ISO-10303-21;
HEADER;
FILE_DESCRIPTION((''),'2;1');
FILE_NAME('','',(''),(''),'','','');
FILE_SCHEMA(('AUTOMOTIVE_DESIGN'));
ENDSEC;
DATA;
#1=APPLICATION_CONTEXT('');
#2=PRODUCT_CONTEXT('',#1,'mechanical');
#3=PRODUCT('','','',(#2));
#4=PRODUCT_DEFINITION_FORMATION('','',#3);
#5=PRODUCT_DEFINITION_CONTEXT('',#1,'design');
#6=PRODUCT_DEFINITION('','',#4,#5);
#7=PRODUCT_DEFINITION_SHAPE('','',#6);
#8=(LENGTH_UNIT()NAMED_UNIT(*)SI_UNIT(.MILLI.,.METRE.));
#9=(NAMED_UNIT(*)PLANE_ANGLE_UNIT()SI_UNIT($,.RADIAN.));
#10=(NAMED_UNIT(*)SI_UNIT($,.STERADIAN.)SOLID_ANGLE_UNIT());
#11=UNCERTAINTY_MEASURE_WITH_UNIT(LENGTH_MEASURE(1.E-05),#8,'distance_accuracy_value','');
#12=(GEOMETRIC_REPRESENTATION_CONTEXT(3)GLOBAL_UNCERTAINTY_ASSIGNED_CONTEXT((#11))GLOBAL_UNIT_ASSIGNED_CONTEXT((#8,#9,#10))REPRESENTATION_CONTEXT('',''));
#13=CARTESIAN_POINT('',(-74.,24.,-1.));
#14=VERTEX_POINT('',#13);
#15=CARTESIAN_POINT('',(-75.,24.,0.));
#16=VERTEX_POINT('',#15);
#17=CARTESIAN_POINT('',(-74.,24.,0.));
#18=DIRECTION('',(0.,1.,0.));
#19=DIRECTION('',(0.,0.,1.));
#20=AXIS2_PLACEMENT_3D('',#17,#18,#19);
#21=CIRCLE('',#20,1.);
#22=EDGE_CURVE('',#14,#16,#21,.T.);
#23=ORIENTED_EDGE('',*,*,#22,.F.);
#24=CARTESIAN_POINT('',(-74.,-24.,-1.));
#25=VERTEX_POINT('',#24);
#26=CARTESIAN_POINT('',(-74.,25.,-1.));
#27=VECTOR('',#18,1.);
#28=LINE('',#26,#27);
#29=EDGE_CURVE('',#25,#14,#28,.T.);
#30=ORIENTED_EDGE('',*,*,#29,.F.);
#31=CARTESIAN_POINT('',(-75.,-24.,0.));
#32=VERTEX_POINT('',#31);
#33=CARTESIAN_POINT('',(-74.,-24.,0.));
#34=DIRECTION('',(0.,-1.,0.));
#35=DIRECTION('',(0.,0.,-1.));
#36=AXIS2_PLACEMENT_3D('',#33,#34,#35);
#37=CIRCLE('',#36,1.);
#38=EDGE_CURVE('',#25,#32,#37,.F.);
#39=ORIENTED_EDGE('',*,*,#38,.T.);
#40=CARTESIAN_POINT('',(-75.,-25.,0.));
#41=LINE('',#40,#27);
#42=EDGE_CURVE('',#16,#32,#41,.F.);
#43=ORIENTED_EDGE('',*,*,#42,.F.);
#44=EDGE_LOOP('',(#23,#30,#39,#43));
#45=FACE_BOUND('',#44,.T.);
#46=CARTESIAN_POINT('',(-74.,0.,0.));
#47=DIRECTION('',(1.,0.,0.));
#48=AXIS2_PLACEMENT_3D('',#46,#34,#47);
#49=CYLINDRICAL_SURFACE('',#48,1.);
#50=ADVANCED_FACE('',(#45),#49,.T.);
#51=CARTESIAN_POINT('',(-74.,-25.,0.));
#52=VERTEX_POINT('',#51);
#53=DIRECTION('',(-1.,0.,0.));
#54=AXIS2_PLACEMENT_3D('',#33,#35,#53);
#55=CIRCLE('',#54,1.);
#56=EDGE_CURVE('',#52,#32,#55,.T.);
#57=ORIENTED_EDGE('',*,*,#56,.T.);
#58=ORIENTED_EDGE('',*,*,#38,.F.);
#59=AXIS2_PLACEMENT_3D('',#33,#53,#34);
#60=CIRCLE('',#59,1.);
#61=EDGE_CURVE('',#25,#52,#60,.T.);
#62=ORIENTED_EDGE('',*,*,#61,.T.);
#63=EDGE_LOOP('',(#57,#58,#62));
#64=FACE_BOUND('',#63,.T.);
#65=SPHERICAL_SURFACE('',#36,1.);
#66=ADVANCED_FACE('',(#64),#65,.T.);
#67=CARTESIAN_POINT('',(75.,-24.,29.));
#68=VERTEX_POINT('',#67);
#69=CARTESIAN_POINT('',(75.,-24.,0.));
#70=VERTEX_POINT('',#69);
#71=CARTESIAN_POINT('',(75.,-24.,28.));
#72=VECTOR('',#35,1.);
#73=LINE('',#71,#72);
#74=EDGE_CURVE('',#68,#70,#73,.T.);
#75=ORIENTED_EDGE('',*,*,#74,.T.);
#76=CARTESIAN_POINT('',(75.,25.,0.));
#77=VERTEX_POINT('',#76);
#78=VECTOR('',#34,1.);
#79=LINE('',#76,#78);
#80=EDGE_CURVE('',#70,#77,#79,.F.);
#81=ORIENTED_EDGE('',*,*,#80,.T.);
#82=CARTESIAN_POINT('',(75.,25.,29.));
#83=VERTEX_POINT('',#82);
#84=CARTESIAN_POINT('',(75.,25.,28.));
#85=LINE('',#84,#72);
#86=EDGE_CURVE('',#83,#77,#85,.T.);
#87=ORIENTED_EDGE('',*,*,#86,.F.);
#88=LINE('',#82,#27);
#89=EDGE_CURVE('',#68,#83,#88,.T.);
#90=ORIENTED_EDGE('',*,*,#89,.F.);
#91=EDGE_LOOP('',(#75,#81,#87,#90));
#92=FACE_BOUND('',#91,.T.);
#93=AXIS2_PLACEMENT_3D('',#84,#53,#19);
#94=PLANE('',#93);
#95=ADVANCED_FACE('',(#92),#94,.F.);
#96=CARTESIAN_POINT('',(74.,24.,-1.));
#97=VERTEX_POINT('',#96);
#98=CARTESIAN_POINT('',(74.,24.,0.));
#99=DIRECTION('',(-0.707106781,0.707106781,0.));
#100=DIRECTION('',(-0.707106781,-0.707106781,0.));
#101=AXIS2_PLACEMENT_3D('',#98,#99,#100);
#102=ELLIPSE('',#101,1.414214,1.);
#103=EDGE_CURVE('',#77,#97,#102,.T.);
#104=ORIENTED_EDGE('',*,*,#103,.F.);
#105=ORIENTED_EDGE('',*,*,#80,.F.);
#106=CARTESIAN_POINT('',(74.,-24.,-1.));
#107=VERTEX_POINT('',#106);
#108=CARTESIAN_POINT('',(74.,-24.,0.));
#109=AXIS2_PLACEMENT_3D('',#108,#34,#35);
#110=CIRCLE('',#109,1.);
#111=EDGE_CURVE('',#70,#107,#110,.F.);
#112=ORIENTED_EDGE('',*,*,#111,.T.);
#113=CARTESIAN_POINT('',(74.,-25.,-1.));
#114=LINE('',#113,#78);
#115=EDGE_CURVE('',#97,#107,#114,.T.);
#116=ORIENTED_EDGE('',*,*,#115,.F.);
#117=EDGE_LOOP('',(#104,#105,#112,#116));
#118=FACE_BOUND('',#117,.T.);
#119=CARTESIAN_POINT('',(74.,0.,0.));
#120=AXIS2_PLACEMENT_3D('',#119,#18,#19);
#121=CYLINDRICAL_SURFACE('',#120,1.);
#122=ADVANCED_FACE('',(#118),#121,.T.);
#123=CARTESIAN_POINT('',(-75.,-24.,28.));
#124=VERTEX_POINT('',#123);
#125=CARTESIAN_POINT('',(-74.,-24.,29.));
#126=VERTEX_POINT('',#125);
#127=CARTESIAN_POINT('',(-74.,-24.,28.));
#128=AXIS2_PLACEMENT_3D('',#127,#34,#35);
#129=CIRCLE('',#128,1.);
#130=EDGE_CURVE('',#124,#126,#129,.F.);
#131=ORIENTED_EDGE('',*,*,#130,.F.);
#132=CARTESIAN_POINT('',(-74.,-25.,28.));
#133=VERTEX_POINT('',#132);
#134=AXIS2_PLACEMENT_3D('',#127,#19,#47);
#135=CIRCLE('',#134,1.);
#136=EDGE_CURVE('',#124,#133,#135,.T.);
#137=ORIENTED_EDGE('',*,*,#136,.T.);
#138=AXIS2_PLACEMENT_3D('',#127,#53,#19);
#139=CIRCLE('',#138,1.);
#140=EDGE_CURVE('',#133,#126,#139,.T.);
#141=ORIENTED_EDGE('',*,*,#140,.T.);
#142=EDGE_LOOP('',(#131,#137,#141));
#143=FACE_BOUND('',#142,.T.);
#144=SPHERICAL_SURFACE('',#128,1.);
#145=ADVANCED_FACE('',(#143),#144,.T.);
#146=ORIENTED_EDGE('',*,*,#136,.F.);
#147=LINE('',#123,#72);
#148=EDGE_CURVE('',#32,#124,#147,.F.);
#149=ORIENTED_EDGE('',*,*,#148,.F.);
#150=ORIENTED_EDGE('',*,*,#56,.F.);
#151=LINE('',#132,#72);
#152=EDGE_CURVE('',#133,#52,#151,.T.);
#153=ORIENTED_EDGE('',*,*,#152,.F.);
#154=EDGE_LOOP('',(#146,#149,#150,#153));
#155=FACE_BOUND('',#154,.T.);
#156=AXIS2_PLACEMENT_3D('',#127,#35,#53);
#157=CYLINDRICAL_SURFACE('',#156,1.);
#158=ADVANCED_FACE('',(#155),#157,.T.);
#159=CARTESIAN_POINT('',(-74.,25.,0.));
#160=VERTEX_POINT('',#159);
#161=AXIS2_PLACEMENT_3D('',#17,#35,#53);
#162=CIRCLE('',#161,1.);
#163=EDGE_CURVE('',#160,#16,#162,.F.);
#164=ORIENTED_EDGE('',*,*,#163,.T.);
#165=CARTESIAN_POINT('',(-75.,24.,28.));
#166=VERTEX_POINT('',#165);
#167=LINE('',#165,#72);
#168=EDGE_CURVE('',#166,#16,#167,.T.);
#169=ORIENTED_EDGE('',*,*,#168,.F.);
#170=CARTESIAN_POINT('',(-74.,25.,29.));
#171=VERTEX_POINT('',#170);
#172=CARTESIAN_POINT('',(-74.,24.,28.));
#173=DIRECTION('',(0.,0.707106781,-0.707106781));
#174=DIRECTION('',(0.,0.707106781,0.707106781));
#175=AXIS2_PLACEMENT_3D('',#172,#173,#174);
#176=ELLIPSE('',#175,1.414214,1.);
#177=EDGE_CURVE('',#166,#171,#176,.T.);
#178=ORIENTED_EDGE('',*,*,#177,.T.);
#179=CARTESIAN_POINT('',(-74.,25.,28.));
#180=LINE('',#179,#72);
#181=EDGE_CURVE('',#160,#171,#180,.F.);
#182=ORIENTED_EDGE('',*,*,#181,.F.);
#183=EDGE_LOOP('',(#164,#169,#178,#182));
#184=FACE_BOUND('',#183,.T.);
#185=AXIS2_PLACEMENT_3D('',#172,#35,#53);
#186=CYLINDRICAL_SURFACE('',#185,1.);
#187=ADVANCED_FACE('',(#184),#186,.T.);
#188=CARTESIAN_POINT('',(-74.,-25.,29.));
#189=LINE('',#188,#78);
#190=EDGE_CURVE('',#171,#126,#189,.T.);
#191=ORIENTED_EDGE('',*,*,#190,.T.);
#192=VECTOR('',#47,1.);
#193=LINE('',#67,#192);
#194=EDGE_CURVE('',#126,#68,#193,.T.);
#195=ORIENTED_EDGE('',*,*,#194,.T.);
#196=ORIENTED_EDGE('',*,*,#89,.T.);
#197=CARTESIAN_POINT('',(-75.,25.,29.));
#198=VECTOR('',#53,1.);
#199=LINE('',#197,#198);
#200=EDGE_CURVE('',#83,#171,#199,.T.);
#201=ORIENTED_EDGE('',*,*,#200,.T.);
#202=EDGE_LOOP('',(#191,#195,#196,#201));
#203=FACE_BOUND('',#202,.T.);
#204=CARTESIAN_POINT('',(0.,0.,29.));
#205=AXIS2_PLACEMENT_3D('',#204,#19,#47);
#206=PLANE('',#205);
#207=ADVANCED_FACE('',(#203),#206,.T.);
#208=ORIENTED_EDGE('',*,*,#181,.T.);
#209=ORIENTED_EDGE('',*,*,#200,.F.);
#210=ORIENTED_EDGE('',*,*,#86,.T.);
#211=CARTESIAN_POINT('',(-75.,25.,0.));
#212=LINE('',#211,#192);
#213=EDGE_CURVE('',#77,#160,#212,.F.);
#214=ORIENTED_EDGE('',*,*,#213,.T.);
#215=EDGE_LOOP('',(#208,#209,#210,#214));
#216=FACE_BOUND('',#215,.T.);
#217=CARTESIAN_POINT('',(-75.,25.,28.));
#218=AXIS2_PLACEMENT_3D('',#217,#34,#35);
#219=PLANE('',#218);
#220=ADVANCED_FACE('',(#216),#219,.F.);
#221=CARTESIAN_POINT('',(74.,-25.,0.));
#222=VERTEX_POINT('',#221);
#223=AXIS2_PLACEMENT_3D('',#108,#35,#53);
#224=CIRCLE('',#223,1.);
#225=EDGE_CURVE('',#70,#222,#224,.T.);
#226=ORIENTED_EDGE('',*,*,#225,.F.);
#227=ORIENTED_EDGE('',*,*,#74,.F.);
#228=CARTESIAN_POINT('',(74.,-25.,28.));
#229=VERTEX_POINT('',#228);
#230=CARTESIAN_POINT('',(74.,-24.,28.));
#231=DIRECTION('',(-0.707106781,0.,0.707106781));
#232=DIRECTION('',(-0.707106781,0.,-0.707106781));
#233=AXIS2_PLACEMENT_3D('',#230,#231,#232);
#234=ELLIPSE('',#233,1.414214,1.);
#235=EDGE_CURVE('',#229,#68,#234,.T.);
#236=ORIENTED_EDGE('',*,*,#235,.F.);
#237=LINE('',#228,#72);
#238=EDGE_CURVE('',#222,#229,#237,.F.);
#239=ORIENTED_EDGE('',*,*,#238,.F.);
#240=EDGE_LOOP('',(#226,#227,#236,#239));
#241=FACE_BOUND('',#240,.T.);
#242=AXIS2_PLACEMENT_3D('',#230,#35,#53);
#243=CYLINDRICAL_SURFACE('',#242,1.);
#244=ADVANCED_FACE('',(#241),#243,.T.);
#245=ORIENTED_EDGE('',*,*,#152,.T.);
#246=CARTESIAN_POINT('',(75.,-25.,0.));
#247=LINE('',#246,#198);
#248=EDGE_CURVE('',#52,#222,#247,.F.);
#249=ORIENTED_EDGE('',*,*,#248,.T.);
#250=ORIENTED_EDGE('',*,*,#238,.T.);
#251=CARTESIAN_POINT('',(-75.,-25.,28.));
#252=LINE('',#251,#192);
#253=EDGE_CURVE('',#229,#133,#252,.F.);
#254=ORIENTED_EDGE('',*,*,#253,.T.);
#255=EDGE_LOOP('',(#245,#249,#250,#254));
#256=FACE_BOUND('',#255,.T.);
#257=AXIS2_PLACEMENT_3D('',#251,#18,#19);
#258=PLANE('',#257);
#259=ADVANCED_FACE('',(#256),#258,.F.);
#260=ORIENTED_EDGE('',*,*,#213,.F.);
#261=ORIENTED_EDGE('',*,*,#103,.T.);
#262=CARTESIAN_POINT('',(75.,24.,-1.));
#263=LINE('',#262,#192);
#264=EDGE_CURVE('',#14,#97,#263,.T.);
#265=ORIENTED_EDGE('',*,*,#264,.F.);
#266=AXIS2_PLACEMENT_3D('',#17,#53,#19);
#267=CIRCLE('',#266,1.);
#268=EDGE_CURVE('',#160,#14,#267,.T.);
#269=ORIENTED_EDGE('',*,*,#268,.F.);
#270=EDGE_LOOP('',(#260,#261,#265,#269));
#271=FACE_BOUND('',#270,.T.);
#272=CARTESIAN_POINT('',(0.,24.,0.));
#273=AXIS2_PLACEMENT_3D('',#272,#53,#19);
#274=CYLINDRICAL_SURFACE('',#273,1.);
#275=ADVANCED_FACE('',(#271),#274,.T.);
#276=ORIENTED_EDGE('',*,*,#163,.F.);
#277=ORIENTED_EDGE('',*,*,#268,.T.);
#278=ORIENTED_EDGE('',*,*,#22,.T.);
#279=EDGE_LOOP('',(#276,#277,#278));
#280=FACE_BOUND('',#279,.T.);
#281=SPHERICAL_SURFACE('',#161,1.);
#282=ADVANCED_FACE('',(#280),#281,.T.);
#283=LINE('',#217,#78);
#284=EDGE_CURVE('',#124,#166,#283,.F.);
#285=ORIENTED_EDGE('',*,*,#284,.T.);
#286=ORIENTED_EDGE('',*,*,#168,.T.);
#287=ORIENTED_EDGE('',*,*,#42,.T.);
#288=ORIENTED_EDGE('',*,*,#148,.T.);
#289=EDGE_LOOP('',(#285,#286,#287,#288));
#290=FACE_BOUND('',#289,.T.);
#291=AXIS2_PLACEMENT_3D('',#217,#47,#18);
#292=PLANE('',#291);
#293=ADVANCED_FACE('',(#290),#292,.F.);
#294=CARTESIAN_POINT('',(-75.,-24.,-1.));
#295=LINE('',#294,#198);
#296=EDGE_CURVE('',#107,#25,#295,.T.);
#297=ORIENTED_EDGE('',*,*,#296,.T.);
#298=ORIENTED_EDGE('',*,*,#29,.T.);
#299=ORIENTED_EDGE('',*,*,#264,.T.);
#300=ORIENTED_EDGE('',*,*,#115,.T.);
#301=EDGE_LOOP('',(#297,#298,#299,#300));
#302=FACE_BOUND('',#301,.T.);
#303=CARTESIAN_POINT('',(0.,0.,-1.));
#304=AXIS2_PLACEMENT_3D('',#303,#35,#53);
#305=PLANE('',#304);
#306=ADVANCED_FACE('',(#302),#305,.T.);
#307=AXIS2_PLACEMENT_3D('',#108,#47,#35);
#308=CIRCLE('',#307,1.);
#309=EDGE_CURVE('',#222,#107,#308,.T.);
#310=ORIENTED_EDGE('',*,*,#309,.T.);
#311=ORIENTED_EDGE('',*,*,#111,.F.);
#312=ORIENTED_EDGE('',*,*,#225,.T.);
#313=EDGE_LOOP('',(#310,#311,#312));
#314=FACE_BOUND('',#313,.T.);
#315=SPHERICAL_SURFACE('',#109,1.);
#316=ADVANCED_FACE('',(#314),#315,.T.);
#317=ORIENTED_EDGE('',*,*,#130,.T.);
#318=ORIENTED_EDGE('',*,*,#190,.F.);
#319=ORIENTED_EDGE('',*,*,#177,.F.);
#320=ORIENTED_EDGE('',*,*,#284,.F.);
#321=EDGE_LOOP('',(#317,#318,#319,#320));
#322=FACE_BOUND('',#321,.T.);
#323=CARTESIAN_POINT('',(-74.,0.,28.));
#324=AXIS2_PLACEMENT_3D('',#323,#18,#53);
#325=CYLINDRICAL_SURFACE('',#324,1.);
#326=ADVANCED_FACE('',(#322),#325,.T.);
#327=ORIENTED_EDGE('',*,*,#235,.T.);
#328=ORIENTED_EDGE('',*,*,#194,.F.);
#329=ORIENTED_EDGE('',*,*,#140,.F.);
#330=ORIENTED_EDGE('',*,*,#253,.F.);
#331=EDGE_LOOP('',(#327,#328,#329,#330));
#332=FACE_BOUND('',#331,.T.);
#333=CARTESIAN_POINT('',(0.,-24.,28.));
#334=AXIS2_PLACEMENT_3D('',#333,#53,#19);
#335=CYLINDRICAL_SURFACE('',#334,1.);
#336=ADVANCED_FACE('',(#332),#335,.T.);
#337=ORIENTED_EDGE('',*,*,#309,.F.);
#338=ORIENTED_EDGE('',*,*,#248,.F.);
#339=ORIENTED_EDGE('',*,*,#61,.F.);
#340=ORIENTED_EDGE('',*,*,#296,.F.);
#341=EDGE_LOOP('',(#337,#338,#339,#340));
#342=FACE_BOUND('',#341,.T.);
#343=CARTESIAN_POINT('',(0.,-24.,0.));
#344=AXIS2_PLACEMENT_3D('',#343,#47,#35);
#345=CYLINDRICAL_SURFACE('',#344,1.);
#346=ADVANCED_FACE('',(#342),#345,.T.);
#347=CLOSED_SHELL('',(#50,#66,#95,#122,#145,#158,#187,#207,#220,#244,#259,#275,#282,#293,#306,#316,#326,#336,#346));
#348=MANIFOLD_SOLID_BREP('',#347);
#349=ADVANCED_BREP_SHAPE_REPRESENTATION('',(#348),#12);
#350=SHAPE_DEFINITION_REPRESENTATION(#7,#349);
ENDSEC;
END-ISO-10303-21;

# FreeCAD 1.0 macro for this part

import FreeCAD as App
import Part
import Sketcher


def edges_at(feature, points):
    """Names of the edges that pass closest to the given points."""
    edges = feature.Shape.Edges
    near = lambda p: min(range(len(edges)), key=lambda i: edges[i].distToShape(Part.Vertex(*p))[0])
    return sorted({f"Edge{near(p) + 1}" for p in points})

doc = App.newDocument("Part")
body = doc.addObject("PartDesign::Body", "Body")

# Sketch on XY plane
sketch1 = body.newObject("Sketcher::SketchObject", "Sketch")
sketch1.AttachmentSupport = (doc.getObject("XY_Plane"), [""])
sketch1.MapMode = "FlatFace"
sketch1.addGeometry(Part.LineSegment(App.Vector(-75, 25, 0), App.Vector(-75, -25, 0)), False)
sketch1.addGeometry(Part.LineSegment(App.Vector(-75, -25, 0), App.Vector(75, -25, 0)), False)
sketch1.addGeometry(Part.LineSegment(App.Vector(75, -25, 0), App.Vector(75, 25, 0)), False)
sketch1.addGeometry(Part.LineSegment(App.Vector(75, 25, 0), App.Vector(-75, 25, 0)), False)
sketch1.addConstraint(Sketcher.Constraint("Coincident", 0, 2, 1, 1))
sketch1.addConstraint(Sketcher.Constraint("Coincident", 1, 2, 2, 1))
sketch1.addConstraint(Sketcher.Constraint("Coincident", 2, 2, 3, 1))
sketch1.addConstraint(Sketcher.Constraint("Coincident", 3, 2, 0, 1))
sketch1.addConstraint(Sketcher.Constraint("Vertical", 0))
sketch1.addConstraint(Sketcher.Constraint("Horizontal", 1))
sketch1.addConstraint(Sketcher.Constraint("Vertical", 2))
sketch1.addConstraint(Sketcher.Constraint("Horizontal", 3))
sketch1.addConstraint(Sketcher.Constraint("Symmetric", 0, 2, 2, 2, -1, 1))
sketch1.addConstraint(Sketcher.Constraint("DistanceX", 1, 1, 1, 2, 150.0))
sketch1.addConstraint(Sketcher.Constraint("DistanceY", 0, 2, 0, 1, 50.0))
pad1 = body.newObject("PartDesign::Pad", "Pad")
pad1.Profile = sketch1
pad1.Length = 28

# Sketch on XY plane
sketch2 = body.newObject("Sketcher::SketchObject", "Sketch001")
sketch2.AttachmentSupport = (doc.getObject("XY_Plane"), [""])
sketch2.MapMode = "FlatFace"
sketch2.AttachmentOffset = App.Placement(App.Vector(0, 0, 28), App.Rotation())
sketch2.addGeometry(Part.LineSegment(App.Vector(-75, 25, 0), App.Vector(-75, -25, 0)), False)
sketch2.addGeometry(Part.LineSegment(App.Vector(-75, -25, 0), App.Vector(75, -25, 0)), False)
sketch2.addGeometry(Part.LineSegment(App.Vector(75, -25, 0), App.Vector(75, 25, 0)), False)
sketch2.addGeometry(Part.LineSegment(App.Vector(75, 25, 0), App.Vector(-75, 25, 0)), False)
sketch2.addConstraint(Sketcher.Constraint("Coincident", 0, 2, 1, 1))
sketch2.addConstraint(Sketcher.Constraint("Coincident", 1, 2, 2, 1))
sketch2.addConstraint(Sketcher.Constraint("Coincident", 2, 2, 3, 1))
sketch2.addConstraint(Sketcher.Constraint("Coincident", 3, 2, 0, 1))
sketch2.addConstraint(Sketcher.Constraint("Vertical", 0))
sketch2.addConstraint(Sketcher.Constraint("Horizontal", 1))
sketch2.addConstraint(Sketcher.Constraint("Vertical", 2))
sketch2.addConstraint(Sketcher.Constraint("Horizontal", 3))
sketch2.addConstraint(Sketcher.Constraint("Symmetric", 0, 2, 2, 2, -1, 1))
sketch2.addConstraint(Sketcher.Constraint("DistanceX", 1, 1, 1, 2, 150.0))
sketch2.addConstraint(Sketcher.Constraint("DistanceY", 0, 2, 0, 1, 50.0))
pad2 = body.newObject("PartDesign::Pad", "Pad001")
pad2.Profile = sketch2
pad2.Length = 1

# Sketch on XY plane
sketch3 = body.newObject("Sketcher::SketchObject", "Sketch002")
sketch3.AttachmentSupport = (doc.getObject("XY_Plane"), [""])
sketch3.MapMode = "FlatFace"
sketch3.addGeometry(Part.LineSegment(App.Vector(75, 25, 0), App.Vector(75, -25, 0)), False)
sketch3.addGeometry(Part.LineSegment(App.Vector(75, -25, 0), App.Vector(-75, -25, 0)), False)
sketch3.addGeometry(Part.LineSegment(App.Vector(-75, -25, 0), App.Vector(-75, 25, 0)), False)
sketch3.addGeometry(Part.LineSegment(App.Vector(-75, 25, 0), App.Vector(75, 25, 0)), False)
sketch3.addConstraint(Sketcher.Constraint("Coincident", 0, 2, 1, 1))
sketch3.addConstraint(Sketcher.Constraint("Coincident", 1, 2, 2, 1))
sketch3.addConstraint(Sketcher.Constraint("Coincident", 2, 2, 3, 1))
sketch3.addConstraint(Sketcher.Constraint("Coincident", 3, 2, 0, 1))
sketch3.addConstraint(Sketcher.Constraint("Vertical", 0))
sketch3.addConstraint(Sketcher.Constraint("Horizontal", 1))
sketch3.addConstraint(Sketcher.Constraint("Vertical", 2))
sketch3.addConstraint(Sketcher.Constraint("Horizontal", 3))
sketch3.addConstraint(Sketcher.Constraint("Symmetric", 0, 2, 2, 2, -1, 1))
sketch3.addConstraint(Sketcher.Constraint("DistanceX", 1, 2, 1, 1, 150.0))
sketch3.addConstraint(Sketcher.Constraint("DistanceY", 0, 2, 0, 1, 50.0))
pad3 = body.newObject("PartDesign::Pad", "Pad002")
pad3.Profile = sketch3
pad3.Length = 1
pad3.Reversed = True
doc.recompute()

fillet = body.newObject("PartDesign::Fillet", "Fillet")
fillet.Base = (pad3, edges_at(pad3, [
    (-75, 0, 29),
    (0, -25, 29),
    (-75, 0, -1),
    (0, 25, -1),
    (75, 0, -1),
    (0, -25, -1),
    (75, -25, 14),
    (-75, -25, 14),
    (-75, 25, 14),
]))
fillet.Radius = 1

doc.recompute()
